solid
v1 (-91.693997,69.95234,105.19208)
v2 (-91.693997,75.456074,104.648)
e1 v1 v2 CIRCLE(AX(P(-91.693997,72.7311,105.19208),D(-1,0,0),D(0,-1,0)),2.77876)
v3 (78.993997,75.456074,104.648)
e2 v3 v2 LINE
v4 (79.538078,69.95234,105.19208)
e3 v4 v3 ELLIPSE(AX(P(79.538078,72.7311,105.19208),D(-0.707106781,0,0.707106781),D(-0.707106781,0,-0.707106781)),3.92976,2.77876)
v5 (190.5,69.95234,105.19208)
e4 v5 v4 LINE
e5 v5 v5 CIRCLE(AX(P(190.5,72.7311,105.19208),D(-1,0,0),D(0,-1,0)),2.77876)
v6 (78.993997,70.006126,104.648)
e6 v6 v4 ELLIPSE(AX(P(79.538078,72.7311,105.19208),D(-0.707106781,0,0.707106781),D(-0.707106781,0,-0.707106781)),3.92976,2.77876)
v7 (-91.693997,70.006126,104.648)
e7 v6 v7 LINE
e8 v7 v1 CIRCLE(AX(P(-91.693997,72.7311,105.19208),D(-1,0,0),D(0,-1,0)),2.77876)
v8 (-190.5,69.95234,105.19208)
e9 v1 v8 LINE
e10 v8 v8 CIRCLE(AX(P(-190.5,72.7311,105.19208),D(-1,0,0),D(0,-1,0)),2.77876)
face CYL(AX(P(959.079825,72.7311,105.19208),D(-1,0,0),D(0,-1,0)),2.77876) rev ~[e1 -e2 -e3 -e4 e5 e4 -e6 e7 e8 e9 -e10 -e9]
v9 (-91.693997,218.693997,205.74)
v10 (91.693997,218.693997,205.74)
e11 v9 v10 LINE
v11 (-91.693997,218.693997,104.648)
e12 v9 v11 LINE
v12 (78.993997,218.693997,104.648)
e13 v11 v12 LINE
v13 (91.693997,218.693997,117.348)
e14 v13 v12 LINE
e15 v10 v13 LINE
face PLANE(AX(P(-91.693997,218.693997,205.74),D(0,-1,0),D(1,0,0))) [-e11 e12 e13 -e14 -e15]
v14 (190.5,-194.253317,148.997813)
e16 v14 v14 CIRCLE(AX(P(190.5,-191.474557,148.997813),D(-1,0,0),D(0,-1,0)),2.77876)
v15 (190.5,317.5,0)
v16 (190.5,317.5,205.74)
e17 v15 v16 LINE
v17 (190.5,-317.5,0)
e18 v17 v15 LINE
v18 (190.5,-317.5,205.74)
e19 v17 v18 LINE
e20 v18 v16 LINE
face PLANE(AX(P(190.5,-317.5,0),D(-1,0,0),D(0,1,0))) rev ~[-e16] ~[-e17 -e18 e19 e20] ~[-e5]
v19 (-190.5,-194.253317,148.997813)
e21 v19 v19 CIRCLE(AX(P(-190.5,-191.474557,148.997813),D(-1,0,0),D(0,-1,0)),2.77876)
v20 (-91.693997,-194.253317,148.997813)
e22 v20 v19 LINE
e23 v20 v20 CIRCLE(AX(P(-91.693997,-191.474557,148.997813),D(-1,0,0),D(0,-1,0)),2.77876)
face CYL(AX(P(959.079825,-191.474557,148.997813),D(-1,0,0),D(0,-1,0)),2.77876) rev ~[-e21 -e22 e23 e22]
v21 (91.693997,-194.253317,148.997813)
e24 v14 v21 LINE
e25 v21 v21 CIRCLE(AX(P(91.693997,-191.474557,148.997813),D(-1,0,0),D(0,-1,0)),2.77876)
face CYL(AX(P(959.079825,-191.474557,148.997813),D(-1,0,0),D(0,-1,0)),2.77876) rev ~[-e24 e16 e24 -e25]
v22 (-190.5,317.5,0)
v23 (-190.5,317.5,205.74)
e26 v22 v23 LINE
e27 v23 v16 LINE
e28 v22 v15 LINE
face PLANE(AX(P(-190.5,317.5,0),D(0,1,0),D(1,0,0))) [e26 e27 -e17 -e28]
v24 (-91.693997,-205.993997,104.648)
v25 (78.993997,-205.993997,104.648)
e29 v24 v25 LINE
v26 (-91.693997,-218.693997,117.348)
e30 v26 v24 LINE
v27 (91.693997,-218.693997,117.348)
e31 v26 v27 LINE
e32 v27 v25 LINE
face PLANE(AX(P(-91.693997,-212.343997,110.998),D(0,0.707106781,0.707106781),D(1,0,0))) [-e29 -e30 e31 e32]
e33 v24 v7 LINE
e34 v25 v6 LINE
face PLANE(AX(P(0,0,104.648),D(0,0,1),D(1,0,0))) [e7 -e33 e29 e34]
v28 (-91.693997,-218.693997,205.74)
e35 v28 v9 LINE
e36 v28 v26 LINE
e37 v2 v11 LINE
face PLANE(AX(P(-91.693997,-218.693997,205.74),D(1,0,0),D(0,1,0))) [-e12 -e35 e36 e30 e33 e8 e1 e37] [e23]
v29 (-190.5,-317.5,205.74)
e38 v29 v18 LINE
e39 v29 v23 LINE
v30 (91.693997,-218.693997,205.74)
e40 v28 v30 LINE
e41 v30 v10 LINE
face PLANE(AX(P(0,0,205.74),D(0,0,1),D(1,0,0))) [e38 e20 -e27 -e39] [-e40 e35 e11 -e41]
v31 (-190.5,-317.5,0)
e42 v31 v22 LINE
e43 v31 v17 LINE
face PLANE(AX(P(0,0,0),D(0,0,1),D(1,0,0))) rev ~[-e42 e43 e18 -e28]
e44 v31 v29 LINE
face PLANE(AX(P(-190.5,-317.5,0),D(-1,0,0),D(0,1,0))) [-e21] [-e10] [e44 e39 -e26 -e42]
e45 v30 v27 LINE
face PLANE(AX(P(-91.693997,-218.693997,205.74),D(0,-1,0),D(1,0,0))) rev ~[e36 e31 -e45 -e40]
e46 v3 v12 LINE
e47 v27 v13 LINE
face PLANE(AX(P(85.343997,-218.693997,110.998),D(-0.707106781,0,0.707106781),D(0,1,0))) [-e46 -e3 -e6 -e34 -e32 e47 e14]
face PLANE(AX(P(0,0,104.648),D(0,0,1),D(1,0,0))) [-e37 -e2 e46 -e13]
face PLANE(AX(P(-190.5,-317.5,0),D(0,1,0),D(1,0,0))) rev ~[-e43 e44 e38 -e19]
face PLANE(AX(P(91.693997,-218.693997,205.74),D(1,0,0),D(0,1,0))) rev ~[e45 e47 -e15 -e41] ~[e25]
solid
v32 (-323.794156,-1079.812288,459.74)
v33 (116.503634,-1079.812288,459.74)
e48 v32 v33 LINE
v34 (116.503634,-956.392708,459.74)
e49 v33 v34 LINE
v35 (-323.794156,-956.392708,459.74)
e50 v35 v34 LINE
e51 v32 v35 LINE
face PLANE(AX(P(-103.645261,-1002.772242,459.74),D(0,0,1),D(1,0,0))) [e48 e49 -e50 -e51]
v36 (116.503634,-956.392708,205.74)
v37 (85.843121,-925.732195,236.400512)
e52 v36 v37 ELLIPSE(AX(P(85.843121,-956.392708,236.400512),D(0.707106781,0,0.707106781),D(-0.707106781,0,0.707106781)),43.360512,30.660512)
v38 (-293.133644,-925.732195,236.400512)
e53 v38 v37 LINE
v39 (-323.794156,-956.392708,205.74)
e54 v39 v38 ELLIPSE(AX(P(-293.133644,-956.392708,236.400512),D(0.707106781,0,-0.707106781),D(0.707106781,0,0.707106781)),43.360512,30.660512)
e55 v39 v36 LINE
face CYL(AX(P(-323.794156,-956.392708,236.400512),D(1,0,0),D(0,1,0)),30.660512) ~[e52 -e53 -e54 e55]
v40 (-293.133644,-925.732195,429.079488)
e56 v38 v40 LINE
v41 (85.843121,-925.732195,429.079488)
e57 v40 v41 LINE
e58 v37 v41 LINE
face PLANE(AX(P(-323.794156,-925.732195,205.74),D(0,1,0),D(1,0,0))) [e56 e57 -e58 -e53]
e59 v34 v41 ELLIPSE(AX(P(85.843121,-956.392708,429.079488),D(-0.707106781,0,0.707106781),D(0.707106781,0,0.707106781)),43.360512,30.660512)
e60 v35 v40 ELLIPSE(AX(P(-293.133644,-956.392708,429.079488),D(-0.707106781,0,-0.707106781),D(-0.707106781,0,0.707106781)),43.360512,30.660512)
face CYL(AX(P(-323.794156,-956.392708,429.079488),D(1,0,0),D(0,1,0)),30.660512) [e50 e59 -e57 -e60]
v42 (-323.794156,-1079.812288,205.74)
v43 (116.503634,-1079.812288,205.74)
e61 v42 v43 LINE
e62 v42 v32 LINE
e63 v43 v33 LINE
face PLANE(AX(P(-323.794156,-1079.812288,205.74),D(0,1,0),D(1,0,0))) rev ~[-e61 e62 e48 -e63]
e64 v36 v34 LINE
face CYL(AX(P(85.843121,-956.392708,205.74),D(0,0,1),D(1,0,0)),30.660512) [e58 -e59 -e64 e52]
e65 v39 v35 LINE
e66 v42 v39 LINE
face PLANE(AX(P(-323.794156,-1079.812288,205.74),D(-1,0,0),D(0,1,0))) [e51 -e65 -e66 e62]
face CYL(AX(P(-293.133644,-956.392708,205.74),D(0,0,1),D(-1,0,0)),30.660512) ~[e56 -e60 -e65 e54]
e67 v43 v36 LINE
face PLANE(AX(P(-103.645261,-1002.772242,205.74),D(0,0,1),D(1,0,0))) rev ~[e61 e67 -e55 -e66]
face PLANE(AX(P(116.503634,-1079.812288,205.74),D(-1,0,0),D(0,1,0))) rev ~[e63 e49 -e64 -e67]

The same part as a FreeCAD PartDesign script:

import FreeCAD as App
import Part
import Sketcher
Q = App.Units.Quantity


def edges_at(feature, points):
    """Names of the edges that pass closest to the given points."""
    edges = feature.Shape.Edges
    near = lambda p: min(range(len(edges)), key=lambda i: edges[i].distToShape(Part.Vertex(*p))[0])
    return sorted({f"Edge{near(p) + 1}" for p in points})


def add_polygon(sketch, points):
    """Adds a closed chain of lines whose ends are joined by coincident constraints."""
    first, n = sketch.GeometryCount, len(points)
    for a, b in zip(points, points[1:] + points[:1]):
        sketch.addGeometry(Part.LineSegment(App.Vector(*a, 0), App.Vector(*b, 0)), False)
    for i in range(n):
        sketch.addConstraint(Sketcher.Constraint("Coincident", first + i, 2, first + (i + 1) % n, 1))

doc = App.newDocument("Part")
body = doc.addObject("PartDesign::Body", "Body")

sketch1 = doc.addObject("Sketcher::SketchObject", "Sketch")
body.addObject(sketch1)
sketch1.AttachmentSupport = (doc.XY_Plane, [""])
sketch1.MapMode = "FlatFace"
add_polygon(sketch1, [(-190.5, 317.5), (-190.5, -317.5), (190.5, -317.5), (190.5, 317.5)])
sketch1.addConstraint([
    Sketcher.Constraint("Vertical", 0),
    Sketcher.Constraint("Horizontal", 1),
    Sketcher.Constraint("Vertical", 2),
    Sketcher.Constraint("Horizontal", 3),
    Sketcher.Constraint("Symmetric", 0, 2, 2, 2, -1, 1),
    Sketcher.Constraint("DistanceX", 1, 1, 1, 2, Q("15 in")),
    Sketcher.Constraint("DistanceY", 0, 2, 0, 1, Q("25 in")),
])
pad1 = doc.addObject("PartDesign::Pad", "Pad")
body.addObject(pad1)
pad1.Profile = sketch1
pad1.Length = Q("8.1 in")

sketch2 = doc.addObject("Sketcher::SketchObject", "Sketch001")
body.addObject(sketch2)
sketch2.AttachmentSupport = (doc.XY_Plane, [""])
sketch2.MapMode = "FlatFace"
sketch2.AttachmentOffset = App.Placement(App.Vector(0, 0, 8.1 * 25.4), App.Rotation())
add_polygon(sketch2, [(-91.693997, 218.693997), (-91.693997, -218.693997), (91.693997, -218.693997), (91.693997, 218.693997)])
sketch2.addConstraint([
    Sketcher.Constraint("Vertical", 0),
    Sketcher.Constraint("Horizontal", 1),
    Sketcher.Constraint("Vertical", 2),
    Sketcher.Constraint("Horizontal", 3),
    Sketcher.Constraint("Symmetric", 0, 2, 2, 2, -1, 1),
    Sketcher.Constraint("DistanceX", 0, 2, -1, 1, Q("3.6099999 in")),
    Sketcher.Constraint("DistanceY", 0, 2, -1, 1, Q("8.6099999 in")),
])
pocket1 = doc.addObject("PartDesign::Pocket", "Pocket")
body.addObject(pocket1)
pocket1.Profile = sketch2
pocket1.Length = Q("3.98 in")
doc.recompute()

chamfer = doc.addObject("PartDesign::Chamfer", "Chamfer")
body.addObject(chamfer)
chamfer.Base = (pocket1, edges_at(pocket1, [(0, -218.694, 104.648), (91.694, 0, 104.648)]))
chamfer.Size = Q("0.5 in")

sketch3 = doc.addObject("Sketcher::SketchObject", "Sketch002")
body.addObject(sketch3)
sketch3.AttachmentSupport = (doc.YZ_Plane, [""])
sketch3.MapMode = "FlatFace"
sketch3.AttachmentOffset = App.Placement(App.Vector(0, 0, 7.5 * 25.4), App.Rotation())
sketch3.addGeometry([
    Part.Circle(App.Vector(-191.474557, 148.997813, 0), App.Vector(0, 0, 1), 2.77876),
    Part.Circle(App.Vector(72.7311, 105.19208, 0), App.Vector(0, 0, 1), 2.77876),
], False)
sketch3.addConstraint([
    Sketcher.Constraint("Equal", 0, 1),
    Sketcher.Constraint("Diameter", 0, Q("0.2188 in")),
    Sketcher.Constraint("DistanceX", -1, 1, 1, 3, 72.7311),
    Sketcher.Constraint("DistanceY", -1, 1, 1, 3, 105.19208),
    Sketcher.Constraint("DistanceX", 0, 3, -1, 1, 191.474557),
    Sketcher.Constraint("DistanceY", -1, 1, 0, 3, 148.997813),
])
doc.recompute()
hole = doc.addObject("PartDesign::Hole", "Hole")
body.addObject(hole)
hole.Profile = sketch3
hole.ThreadType = "None"
hole.Diameter = Q("0.2188 in")
hole.DepthType = "ThroughAll"
body2 = doc.addObject("PartDesign::Body", "Body001")

sketch4 = doc.addObject("Sketcher::SketchObject", "Sketch003")
body2.addObject(sketch4)
sketch4.AttachmentSupport = (doc.getObject("XY_Plane001"), [""])
sketch4.MapMode = "FlatFace"
sketch4.AttachmentOffset = App.Placement(App.Vector(0, 0, 8.1 * 25.4), App.Rotation())
add_polygon(sketch4, [(-323.794156, -925.732195), (-323.794156, -1079.812288), (116.503634, -1079.812288), (116.503634, -925.732195)])
sketch4.addConstraint([
    Sketcher.Constraint("Vertical", 0),
    Sketcher.Constraint("Horizontal", 1),
    Sketcher.Constraint("Vertical", 2),
    Sketcher.Constraint("Horizontal", 3),
    Sketcher.Constraint("DistanceX", 1, 1, 1, 2, 440.29779),
    Sketcher.Constraint("DistanceY", 0, 2, 0, 1, 154.080093),
    Sketcher.Constraint("DistanceY", 0, 2, -1, 1, 1079.812288),
    Sketcher.Constraint("DistanceX", 0, 2, -1, 1, 323.794156),
])
pad2 = doc.addObject("PartDesign::Pad", "Pad001")
body2.addObject(pad2)
pad2.Profile = sketch4
pad2.Length = Q("10 in")
doc.recompute()

fillet = doc.addObject("PartDesign::Fillet", "Fillet")
body2.addObject(fillet)
fillet.Base = (pad2, edges_at(pad2, [
    (116.504, -925.732, 332.74),
    (-323.794, -925.732, 332.74),
    (-103.645, -925.732, 205.74),
    (-103.645, -925.732, 459.74),
]))
fillet.Radius = 30.660512

doc.recompute()
